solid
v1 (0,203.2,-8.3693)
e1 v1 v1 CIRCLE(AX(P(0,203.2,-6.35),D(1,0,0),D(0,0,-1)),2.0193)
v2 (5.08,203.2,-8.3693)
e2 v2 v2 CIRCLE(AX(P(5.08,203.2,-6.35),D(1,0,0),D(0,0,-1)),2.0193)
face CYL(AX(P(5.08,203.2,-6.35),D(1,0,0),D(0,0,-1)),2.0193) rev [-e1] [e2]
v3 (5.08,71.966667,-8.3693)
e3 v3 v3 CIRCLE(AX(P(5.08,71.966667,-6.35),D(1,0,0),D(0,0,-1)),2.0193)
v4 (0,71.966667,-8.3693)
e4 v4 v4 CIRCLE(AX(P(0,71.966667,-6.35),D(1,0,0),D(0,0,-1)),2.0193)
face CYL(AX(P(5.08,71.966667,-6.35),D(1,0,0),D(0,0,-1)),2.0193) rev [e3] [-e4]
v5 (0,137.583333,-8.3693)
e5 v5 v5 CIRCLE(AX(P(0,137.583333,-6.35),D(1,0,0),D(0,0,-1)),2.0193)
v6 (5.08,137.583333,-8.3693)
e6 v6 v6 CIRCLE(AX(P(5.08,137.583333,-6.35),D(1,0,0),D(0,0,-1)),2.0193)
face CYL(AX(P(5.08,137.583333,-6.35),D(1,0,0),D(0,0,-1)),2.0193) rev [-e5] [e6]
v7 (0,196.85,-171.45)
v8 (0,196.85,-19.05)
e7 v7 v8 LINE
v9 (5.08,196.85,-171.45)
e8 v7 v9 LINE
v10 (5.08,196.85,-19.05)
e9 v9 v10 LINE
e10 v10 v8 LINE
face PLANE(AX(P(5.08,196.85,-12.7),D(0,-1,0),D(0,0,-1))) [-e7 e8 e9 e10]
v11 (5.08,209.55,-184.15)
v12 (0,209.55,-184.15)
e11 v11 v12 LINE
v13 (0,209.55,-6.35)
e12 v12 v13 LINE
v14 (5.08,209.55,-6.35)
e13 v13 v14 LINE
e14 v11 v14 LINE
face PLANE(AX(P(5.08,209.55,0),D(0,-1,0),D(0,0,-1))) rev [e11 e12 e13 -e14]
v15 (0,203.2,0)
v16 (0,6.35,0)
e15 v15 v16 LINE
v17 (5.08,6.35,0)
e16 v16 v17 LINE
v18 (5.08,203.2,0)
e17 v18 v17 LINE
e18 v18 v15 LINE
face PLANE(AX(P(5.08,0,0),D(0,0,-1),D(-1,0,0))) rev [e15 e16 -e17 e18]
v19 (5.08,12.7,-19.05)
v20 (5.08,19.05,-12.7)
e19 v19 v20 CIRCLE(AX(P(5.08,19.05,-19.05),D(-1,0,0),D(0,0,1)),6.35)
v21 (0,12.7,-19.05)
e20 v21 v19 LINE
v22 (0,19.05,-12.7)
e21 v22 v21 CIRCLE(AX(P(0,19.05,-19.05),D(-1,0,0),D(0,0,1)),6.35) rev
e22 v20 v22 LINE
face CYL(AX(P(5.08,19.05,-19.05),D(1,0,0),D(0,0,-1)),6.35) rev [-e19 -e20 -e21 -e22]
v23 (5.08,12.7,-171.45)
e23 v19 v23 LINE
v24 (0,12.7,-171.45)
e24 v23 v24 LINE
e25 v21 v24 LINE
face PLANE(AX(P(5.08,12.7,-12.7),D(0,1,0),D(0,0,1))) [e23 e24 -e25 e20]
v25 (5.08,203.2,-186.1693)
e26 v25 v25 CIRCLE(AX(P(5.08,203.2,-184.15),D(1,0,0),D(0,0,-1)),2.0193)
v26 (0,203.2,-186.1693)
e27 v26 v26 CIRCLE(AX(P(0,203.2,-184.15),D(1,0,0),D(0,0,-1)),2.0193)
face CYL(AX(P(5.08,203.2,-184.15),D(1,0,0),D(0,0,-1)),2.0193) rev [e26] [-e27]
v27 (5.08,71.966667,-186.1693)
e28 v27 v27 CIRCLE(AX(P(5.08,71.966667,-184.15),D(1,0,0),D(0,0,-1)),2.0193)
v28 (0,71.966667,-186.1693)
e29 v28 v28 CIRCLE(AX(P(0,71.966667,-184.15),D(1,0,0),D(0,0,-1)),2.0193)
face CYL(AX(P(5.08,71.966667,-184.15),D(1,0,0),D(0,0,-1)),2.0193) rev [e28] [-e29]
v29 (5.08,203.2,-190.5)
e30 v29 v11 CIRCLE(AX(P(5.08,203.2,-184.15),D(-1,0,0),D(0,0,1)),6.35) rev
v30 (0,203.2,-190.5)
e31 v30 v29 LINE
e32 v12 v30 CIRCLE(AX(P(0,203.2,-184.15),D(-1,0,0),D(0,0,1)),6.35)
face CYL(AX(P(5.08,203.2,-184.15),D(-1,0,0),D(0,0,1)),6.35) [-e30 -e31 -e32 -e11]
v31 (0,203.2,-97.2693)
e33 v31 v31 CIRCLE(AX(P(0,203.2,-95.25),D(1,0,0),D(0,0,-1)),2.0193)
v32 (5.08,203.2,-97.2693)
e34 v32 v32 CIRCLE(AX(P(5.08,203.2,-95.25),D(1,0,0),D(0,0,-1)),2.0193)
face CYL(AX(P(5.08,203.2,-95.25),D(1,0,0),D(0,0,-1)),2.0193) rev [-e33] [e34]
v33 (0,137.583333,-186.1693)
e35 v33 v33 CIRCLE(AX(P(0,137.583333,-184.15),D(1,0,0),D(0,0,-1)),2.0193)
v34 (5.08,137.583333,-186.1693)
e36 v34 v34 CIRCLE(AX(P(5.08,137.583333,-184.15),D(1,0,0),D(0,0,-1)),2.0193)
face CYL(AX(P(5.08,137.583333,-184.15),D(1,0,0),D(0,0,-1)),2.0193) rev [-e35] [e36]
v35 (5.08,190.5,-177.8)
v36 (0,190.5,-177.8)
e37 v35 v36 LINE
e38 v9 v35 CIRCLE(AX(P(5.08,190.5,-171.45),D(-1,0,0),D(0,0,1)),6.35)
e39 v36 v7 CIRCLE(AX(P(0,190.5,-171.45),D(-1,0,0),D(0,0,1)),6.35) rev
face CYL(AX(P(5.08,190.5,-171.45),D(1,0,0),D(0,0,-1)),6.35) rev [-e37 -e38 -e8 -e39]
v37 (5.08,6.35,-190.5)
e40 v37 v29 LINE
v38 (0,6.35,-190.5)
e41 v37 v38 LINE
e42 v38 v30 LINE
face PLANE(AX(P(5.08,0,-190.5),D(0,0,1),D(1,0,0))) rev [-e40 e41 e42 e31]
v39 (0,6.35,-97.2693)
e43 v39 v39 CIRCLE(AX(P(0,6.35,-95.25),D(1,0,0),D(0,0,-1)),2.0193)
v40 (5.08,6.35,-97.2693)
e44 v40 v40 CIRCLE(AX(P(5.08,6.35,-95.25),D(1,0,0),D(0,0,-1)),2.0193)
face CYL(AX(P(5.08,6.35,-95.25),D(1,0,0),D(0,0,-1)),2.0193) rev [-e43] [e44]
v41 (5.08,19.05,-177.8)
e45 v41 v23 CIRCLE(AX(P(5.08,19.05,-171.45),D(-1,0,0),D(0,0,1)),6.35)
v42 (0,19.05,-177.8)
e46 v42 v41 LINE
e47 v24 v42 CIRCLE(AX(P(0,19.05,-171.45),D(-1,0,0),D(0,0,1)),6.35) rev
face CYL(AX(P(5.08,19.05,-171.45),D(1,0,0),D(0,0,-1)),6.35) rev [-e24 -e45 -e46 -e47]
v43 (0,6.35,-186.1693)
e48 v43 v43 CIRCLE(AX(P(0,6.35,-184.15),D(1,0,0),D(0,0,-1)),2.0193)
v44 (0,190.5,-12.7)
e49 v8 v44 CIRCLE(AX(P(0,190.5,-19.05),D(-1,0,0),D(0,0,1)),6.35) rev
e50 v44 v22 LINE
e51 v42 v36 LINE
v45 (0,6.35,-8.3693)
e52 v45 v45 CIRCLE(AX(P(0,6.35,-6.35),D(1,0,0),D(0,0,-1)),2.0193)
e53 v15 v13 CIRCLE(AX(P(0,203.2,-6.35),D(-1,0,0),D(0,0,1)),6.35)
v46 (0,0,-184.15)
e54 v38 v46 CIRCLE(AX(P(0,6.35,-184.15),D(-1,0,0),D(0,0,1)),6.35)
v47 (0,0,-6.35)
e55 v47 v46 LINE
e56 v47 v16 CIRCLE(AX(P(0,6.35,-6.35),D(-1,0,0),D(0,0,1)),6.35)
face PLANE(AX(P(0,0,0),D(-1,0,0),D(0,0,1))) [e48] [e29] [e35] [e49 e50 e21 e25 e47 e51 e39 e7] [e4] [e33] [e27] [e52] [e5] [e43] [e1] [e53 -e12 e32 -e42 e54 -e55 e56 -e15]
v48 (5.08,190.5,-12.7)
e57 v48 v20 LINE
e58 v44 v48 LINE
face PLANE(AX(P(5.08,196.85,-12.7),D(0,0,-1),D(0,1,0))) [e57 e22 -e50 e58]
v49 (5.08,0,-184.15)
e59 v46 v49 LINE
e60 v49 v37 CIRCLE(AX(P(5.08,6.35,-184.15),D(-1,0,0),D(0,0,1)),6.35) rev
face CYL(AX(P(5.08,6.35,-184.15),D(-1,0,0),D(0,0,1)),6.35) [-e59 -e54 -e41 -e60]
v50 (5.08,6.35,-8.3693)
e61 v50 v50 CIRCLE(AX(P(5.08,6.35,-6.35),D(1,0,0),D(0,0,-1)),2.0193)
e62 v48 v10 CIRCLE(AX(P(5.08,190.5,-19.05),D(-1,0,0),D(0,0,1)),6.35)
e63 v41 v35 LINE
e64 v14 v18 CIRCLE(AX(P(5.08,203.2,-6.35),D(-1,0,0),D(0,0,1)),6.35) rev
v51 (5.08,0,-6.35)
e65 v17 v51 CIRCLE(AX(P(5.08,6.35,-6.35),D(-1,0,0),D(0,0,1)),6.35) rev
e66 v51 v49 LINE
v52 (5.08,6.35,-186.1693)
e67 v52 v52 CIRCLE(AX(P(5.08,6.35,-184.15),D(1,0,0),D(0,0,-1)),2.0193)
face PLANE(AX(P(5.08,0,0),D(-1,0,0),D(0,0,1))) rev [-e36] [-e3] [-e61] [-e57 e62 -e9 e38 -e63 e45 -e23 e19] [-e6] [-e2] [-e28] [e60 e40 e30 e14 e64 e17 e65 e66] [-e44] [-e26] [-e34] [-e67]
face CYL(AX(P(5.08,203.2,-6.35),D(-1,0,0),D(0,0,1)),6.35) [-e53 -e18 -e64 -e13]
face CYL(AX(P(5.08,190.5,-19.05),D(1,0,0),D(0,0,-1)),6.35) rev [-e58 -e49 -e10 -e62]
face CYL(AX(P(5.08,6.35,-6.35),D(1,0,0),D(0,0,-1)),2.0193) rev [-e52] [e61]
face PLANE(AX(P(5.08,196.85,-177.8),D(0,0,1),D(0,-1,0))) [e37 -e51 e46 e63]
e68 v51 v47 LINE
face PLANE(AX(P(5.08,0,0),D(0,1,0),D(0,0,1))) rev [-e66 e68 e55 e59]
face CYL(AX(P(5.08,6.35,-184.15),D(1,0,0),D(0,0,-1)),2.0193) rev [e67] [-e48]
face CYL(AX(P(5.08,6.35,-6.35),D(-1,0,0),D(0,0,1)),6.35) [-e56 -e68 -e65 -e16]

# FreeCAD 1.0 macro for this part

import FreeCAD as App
import Part
import Sketcher

V = App.Vector
Q = App.Units.Quantity


def edges_at(feature, points):
    """Names of the edges that pass closest to the given points."""
    edges = feature.Shape.Edges
    near = lambda p: min(range(len(edges)), key=lambda i: edges[i].distToShape(Part.Vertex(*p))[0])
    return sorted({f"Edge{near(p) + 1}" for p in points})

doc = App.newDocument("Part")
body = doc.addObject("PartDesign::Body", "Body")

sketch1 = doc.addObject("Sketcher::SketchObject", "Sketch")
body.addObject(sketch1)
sketch1.AttachmentSupport = (doc.YZ_Plane, [""])
sketch1.MapMode = "FlatFace"
sketch1.addGeometry([
    Part.LineSegment(V(209.55, 0, 0), V(0, 0, 0)),
    Part.LineSegment(V(0, 0, 0), V(0, -190.5, 0)),
    Part.LineSegment(V(0, -190.5, 0), V(209.55, -190.5, 0)),
    Part.LineSegment(V(209.55, -190.5, 0), V(209.55, 0, 0)),
    Part.LineSegment(V(12.7, -177.8, 0), V(12.7, -12.7, 0)),
    Part.LineSegment(V(12.7, -12.7, 0), V(196.85, -12.7, 0)),
    Part.LineSegment(V(196.85, -12.7, 0), V(196.85, -177.8, 0)),
    Part.LineSegment(V(196.85, -177.8, 0), V(12.7, -177.8, 0)),
], False)
sketch1.addConstraint([
    Sketcher.Constraint("Coincident", 0, 2, 1, 1),
    Sketcher.Constraint("Coincident", 1, 2, 2, 1),
    Sketcher.Constraint("Coincident", 2, 2, 3, 1),
    Sketcher.Constraint("Coincident", 3, 2, 0, 1),
    Sketcher.Constraint("Coincident", 4, 2, 5, 1),
    Sketcher.Constraint("Coincident", 5, 2, 6, 1),
    Sketcher.Constraint("Coincident", 6, 2, 7, 1),
    Sketcher.Constraint("Coincident", 7, 2, 4, 1),
    Sketcher.Constraint("Horizontal", 0),
    Sketcher.Constraint("Vertical", 1),
    Sketcher.Constraint("Horizontal", 2),
    Sketcher.Constraint("Vertical", 3),
    Sketcher.Constraint("Vertical", 4),
    Sketcher.Constraint("Horizontal", 5),
    Sketcher.Constraint("Vertical", 6),
    Sketcher.Constraint("Horizontal", 7),
    Sketcher.Constraint("Coincident", 0, 2, -1, 1),
    Sketcher.Constraint("DistanceY", 1, 2, 1, 1, Q("7.5 in")),
    Sketcher.Constraint("DistanceY", 4, 1, 4, 2, Q("6.5 in")),
    Sketcher.Constraint("DistanceY", 6, 2, -1, 1, Q("7 in")),
    Sketcher.Constraint("DistanceX", 0, 2, 0, 1, Q("8.25 in")),
    Sketcher.Constraint("DistanceX", 5, 1, 5, 2, Q("7.25 in")),
    Sketcher.Constraint("DistanceX", -1, 1, 4, 2, Q("0.5 in")),
])
pad1 = doc.addObject("PartDesign::Pad", "Pad")
body.addObject(pad1)
pad1.Profile = sketch1
pad1.Length = Q("0.2 in")

sketch2 = doc.addObject("Sketcher::SketchObject", "Sketch001")
body.addObject(sketch2)
sketch2.AttachmentSupport = (doc.YZ_Plane, [""])
sketch2.MapMode = "FlatFace"
sketch2.AttachmentOffset = App.Placement(V(0, 0, 0.2 * 25.4), App.Rotation())
sketch2.addGeometry([
    Part.Circle(V(203.2, -6.35, 0), V(0, 0, 1), 2.0193),
    Part.Circle(V(6.35, -184.15, 0), V(0, 0, 1), 2.0193),
    Part.Circle(V(6.35, -6.35, 0), V(0, 0, 1), 2.0193),
    Part.Circle(V(203.2, -184.15, 0), V(0, 0, 1), 2.0193),
    Part.Circle(V(6.35, -95.25, 0), V(0, 0, 1), 2.0193),
    Part.Circle(V(203.2, -95.25, 0), V(0, 0, 1), 2.0193),
    Part.Circle(V(137.583333, -6.35, 0), V(0, 0, 1), 2.0193),
    Part.Circle(V(71.966667, -6.35, 0), V(0, 0, 1), 2.0193),
    Part.Circle(V(71.966667, -184.15, 0), V(0, 0, 1), 2.0193),
    Part.Circle(V(137.583333, -184.15, 0), V(0, 0, 1), 2.0193),
], False)
sketch2.addConstraint([
    Sketcher.Constraint("Equal", 0, 1),
    Sketcher.Constraint("Equal", 1, 2),
    Sketcher.Constraint("Equal", 2, 3),
    Sketcher.Constraint("Equal", 3, 4),
    Sketcher.Constraint("Equal", 4, 5),
    Sketcher.Constraint("Equal", 5, 6),
    Sketcher.Constraint("Equal", 6, 7),
    Sketcher.Constraint("Equal", 7, 8),
    Sketcher.Constraint("Equal", 8, 9),
    Sketcher.Constraint("Horizontal", 0, 3, 2, 3),
    Sketcher.Constraint("Horizontal", 1, 3, 3, 3),
    Sketcher.Constraint("Horizontal", 4, 3, 5, 3),
    Sketcher.Constraint("Horizontal", 2, 3, 6, 3),
    Sketcher.Constraint("Horizontal", 6, 3, 7, 3),
    Sketcher.Constraint("Horizontal", 3, 3, 8, 3),
    Sketcher.Constraint("Horizontal", 8, 3, 9, 3),
    Sketcher.Constraint("Vertical", 1, 3, 2, 3),
    Sketcher.Constraint("Vertical", 0, 3, 3, 3),
    Sketcher.Constraint("Vertical", 2, 3, 4, 3),
    Sketcher.Constraint("Vertical", 3, 3, 5, 3),
    Sketcher.Constraint("Vertical", 7, 3, 8, 3),
    Sketcher.Constraint("Vertical", 6, 3, 9, 3),
    Sketcher.Constraint("Diameter", 0, Q("0.159 in")),
    Sketcher.Constraint("DistanceX", -1, 1, 0, 3, Q("8 in")),
    Sketcher.Constraint("DistanceY", 1, 3, 0, 3, Q("7 in")),
    Sketcher.Constraint("DistanceY", 1, 3, 4, 3, Q("3.5 in")),
    Sketcher.Constraint("DistanceY", 0, 3, -1, 1, Q("0.25 in")),
    Sketcher.Constraint("DistanceX", -1, 1, 1, 3, Q("0.25 in")),
    Sketcher.Constraint("DistanceX", -1, 1, 6, 3, Q("137.583333 mm")),
    Sketcher.Constraint("DistanceX", -1, 1, 7, 3, Q("71.966667 mm")),
])
doc.recompute()
hole = doc.addObject("PartDesign::Hole", "Hole")
body.addObject(hole)
hole.Profile = sketch2
hole.ThreadType = "None"
hole.Diameter = Q("0.159 in")
hole.DepthType = "ThroughAll"
doc.recompute()

fillet = doc.addObject("PartDesign::Fillet", "Fillet")
body.addObject(fillet)
fillet.Base = (hole, edges_at(hole, [
    (2.54, 196.85, -12.7),
    (2.54, 12.7, -12.7),
    (2.54, 12.7, -177.8),
    (2.54, 196.85, -177.8),
    (2.54, 209.55, 0),
    (2.54, 209.55, -190.5),
    (2.54, 0, -190.5),
    (2.54, 0, 0),
]))
fillet.Radius = Q("0.25 in")

doc.recompute()
